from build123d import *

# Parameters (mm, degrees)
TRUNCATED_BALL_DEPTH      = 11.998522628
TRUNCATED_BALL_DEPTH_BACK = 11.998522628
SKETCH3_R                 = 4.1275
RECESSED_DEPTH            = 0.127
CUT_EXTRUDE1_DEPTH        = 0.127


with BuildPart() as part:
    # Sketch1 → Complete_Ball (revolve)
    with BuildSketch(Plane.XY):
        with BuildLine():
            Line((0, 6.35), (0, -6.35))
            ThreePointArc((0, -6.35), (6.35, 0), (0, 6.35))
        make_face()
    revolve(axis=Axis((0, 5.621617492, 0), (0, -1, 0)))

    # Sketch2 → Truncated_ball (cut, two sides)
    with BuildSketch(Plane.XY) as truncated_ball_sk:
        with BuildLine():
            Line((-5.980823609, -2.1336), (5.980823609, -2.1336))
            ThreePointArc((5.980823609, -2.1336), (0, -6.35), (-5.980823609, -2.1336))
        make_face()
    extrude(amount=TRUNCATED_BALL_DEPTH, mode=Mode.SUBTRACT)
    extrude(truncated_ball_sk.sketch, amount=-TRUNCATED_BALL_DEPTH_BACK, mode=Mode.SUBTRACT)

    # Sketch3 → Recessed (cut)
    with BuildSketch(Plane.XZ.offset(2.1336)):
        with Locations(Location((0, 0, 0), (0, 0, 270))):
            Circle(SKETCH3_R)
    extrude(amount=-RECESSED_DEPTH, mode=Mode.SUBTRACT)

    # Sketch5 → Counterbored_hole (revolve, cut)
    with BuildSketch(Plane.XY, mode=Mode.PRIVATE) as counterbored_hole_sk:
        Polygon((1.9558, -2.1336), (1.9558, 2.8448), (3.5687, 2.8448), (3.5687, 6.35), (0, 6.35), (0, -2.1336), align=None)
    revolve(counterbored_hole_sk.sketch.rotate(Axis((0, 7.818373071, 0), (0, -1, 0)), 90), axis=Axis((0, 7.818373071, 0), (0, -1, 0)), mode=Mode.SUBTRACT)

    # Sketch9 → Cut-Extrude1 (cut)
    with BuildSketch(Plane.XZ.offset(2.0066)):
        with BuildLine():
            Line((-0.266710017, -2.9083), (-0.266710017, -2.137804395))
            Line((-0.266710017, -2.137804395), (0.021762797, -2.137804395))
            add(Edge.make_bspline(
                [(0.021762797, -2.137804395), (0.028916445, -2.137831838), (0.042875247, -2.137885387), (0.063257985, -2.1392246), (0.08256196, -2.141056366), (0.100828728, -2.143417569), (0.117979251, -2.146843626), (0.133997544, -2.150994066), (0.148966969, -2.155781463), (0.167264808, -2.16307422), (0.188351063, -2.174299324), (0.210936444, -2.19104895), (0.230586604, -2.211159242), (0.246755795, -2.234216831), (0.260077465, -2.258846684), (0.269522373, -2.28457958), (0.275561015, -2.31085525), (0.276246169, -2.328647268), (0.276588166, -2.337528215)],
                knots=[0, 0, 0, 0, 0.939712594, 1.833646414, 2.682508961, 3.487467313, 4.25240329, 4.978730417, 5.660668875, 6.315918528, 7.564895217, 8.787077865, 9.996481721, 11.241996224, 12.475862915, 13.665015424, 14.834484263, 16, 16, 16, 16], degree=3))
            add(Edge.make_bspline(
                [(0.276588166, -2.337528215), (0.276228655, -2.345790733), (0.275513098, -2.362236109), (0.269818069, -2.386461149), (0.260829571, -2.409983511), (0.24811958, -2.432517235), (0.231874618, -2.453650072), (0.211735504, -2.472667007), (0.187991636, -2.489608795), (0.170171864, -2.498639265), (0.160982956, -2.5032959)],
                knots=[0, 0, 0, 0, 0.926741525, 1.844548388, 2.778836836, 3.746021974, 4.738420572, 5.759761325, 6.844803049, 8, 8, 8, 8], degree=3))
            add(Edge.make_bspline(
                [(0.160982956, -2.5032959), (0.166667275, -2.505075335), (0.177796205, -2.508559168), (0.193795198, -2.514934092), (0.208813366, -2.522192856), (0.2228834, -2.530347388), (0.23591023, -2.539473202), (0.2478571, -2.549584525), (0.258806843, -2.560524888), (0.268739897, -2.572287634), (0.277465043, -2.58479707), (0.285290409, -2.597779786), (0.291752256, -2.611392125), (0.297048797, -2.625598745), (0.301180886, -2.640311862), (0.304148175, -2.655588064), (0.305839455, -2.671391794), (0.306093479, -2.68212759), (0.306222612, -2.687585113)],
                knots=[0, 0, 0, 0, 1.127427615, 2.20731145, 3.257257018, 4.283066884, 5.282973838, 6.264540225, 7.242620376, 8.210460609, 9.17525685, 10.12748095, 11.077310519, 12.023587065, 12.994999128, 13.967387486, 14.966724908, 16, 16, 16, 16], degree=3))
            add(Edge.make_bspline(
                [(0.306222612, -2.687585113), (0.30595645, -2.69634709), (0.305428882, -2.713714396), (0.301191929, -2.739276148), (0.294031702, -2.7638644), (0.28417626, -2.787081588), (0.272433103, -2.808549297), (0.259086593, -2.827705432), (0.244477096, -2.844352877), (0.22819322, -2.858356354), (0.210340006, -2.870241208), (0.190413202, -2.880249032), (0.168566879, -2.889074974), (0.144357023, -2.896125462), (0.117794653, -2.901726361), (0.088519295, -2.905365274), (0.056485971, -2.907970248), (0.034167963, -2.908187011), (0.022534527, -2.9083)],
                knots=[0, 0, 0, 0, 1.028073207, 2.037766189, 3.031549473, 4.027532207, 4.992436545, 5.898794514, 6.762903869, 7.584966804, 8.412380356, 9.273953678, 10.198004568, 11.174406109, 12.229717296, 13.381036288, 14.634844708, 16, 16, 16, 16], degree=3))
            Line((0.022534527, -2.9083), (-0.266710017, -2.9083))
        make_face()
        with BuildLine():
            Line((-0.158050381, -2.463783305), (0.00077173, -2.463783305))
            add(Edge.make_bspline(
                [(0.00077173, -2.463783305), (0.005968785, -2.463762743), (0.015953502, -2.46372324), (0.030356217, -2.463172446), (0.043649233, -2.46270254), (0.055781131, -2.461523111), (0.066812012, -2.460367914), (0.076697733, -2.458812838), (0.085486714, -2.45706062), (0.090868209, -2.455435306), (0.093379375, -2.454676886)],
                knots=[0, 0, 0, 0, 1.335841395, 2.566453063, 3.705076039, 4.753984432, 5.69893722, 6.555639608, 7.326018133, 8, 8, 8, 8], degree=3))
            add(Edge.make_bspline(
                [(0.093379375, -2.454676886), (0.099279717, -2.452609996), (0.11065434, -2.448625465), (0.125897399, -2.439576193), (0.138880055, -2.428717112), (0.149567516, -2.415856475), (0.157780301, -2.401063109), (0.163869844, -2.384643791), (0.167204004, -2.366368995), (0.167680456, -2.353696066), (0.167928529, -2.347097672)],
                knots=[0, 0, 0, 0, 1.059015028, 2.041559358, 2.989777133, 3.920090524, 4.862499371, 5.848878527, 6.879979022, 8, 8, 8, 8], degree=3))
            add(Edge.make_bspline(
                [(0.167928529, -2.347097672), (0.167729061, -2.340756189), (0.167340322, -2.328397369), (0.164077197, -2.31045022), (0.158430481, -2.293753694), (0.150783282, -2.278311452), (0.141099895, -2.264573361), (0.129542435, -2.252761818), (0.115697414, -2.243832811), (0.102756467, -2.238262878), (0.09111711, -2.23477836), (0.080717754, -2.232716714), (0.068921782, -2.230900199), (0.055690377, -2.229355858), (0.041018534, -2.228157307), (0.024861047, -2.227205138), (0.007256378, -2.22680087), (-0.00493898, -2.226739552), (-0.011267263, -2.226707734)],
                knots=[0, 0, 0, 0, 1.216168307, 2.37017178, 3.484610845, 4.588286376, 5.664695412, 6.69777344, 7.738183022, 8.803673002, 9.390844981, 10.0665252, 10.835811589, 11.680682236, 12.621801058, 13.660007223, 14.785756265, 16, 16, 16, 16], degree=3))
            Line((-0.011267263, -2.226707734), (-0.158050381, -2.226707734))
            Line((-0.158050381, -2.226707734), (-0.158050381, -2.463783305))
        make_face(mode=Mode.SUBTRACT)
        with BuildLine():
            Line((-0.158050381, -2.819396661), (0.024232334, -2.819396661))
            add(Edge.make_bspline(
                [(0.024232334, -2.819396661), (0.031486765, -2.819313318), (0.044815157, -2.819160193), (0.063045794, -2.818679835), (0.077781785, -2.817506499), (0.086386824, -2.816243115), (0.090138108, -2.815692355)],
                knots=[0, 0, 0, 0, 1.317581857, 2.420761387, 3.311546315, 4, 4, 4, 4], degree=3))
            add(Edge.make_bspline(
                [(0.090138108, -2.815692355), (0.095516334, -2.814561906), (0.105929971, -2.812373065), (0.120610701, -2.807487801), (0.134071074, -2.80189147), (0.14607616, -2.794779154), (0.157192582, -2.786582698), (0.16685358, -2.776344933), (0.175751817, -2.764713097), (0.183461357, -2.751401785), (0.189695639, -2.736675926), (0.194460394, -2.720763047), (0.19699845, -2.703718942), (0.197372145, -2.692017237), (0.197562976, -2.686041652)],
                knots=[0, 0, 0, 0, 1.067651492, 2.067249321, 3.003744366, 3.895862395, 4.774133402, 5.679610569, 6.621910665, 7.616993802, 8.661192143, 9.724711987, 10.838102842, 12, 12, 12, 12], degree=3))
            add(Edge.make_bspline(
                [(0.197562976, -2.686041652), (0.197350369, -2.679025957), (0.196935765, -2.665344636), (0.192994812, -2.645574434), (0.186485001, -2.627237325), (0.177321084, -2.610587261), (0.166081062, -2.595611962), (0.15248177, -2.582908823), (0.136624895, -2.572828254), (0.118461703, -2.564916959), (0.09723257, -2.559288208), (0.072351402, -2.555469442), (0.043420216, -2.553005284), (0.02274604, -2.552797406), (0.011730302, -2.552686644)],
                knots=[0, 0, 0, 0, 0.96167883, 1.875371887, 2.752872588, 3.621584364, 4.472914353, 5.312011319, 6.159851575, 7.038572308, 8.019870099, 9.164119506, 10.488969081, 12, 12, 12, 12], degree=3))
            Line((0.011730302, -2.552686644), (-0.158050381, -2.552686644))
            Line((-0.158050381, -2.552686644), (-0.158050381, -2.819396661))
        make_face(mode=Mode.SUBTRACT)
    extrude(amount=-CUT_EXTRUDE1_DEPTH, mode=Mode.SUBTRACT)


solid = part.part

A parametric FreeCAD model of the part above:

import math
import FreeCAD as App
import Part
import Sketcher
from FreeCAD import Vector
Q = App.Units.Quantity

doc = App.newDocument("Part")
body = doc.addObject("PartDesign::Body", "Body")

sketch1 = body.newObject("Sketcher::SketchObject", "Sketch")
sketch1.AttachmentSupport = (doc.getObject("XY_Plane"), [""])
sketch1.MapMode = "FlatFace"
sketch1.addGeometry([
    Part.LineSegment(Vector(0, 6, 0), Vector(0, -6, 0)),
    Part.ArcOfCircle(Part.Circle(Vector(0, 0, 0), Vector(0, 0, 1), 6), math.radians(-90), math.radians(90)),
], False)
sketch1.addConstraint([
    Sketcher.Constraint("Coincident", 0, 1, 1, 2),
    Sketcher.Constraint("Coincident", 1, 1, 0, 2),
    Sketcher.Constraint("Vertical", 0),
    Sketcher.Constraint("Coincident", 1, 3, -1, 1),
    Sketcher.Constraint("PointOnObject", 0, 1, -2),
    Sketcher.Constraint("Radius", 1, Q("0.25 in")),
])
revolution = body.newObject("PartDesign::Revolution", "Revolution")
revolution.Profile = sketch1
revolution.ReferenceAxis = (sketch1, ["V_Axis"])
revolution.Angle = 360

sketch2 = body.newObject("Sketcher::SketchObject", "Sketch001")
sketch2.AttachmentSupport = (doc.getObject("XY_Plane"), [""])
sketch2.MapMode = "FlatFace"
sketch2.addGeometry([
    Part.LineSegment(Vector(6, -2, 0), Vector(-6, -2, 0)),
    Part.ArcOfCircle(Part.Circle(Vector(0, 0, 0), Vector(0, 0, 1), 6), math.radians(-160), math.radians(-20)),
], False)
sketch2.addConstraint([
    Sketcher.Constraint("Coincident", 0, 1, 1, 2),
    Sketcher.Constraint("Coincident", 1, 1, 0, 2),
    Sketcher.Constraint("Horizontal", 0),
    Sketcher.Constraint("Coincident", 1, 3, -1, 1),
    Sketcher.Constraint("Radius", 1, Q("0.25 in")),
    Sketcher.Constraint("DistanceY", 0, 1, -1, 1, Q("0.084 in")),
])
pocket1 = body.newObject("PartDesign::Pocket", "Pocket")
pocket1.Profile = sketch2
pocket1.Type = "ThroughAll"
pocket1.Midplane = True

sketch3 = body.newObject("Sketcher::SketchObject", "Sketch002")
sketch3.AttachmentSupport = (doc.getObject("XZ_Plane"), [""])
sketch3.MapMode = "FlatFace"
sketch3.AttachmentOffset = App.Placement(Vector(0, 0, 0.084 * 25.4), App.Rotation())
sketch3.addGeometry(Part.Circle(Vector(0, 0, 0), Vector(0, 0, 1), 4.1), False)
sketch3.addConstraint([
    Sketcher.Constraint("Coincident", 0, 3, -1, 1),
    Sketcher.Constraint("Diameter", 0, Q("0.325 in")),
])
pocket2 = body.newObject("PartDesign::Pocket", "Pocket001")
pocket2.Profile = sketch3
pocket2.Length = Q("0.005 in")

sketch4 = body.newObject("Sketcher::SketchObject", "Sketch003")
sketch4.AttachmentSupport = (doc.getObject("XY_Plane"), [""])
sketch4.MapMode = "FlatFace"
sketch4.addGeometry([
    Part.LineSegment(Vector(2, -2.1, 0), Vector(2, 2.8, 0)),
    Part.LineSegment(Vector(2, 2.8, 0), Vector(3.6, 2.8, 0)),
    Part.LineSegment(Vector(3.6, 2.8, 0), Vector(3.6, 6.3, 0)),
    Part.LineSegment(Vector(3.6, 6.3, 0), Vector(0, 6.3, 0)),
    Part.LineSegment(Vector(0, 6.3, 0), Vector(0, -2.1, 0)),
    Part.LineSegment(Vector(0, -2.1, 0), Vector(2, -2.1, 0)),
], False)
sketch4.addConstraint([
    Sketcher.Constraint("Coincident", 0, 2, 1, 1),
    Sketcher.Constraint("Coincident", 1, 2, 2, 1),
    Sketcher.Constraint("Coincident", 2, 2, 3, 1),
    Sketcher.Constraint("Coincident", 3, 2, 4, 1),
    Sketcher.Constraint("Coincident", 4, 2, 5, 1),
    Sketcher.Constraint("Coincident", 5, 2, 0, 1),
    Sketcher.Constraint("Vertical", 0),
    Sketcher.Constraint("Horizontal", 1),
    Sketcher.Constraint("Vertical", 2),
    Sketcher.Constraint("Horizontal", 3),
    Sketcher.Constraint("Vertical", 4),
    Sketcher.Constraint("Horizontal", 5),
    Sketcher.Constraint("PointOnObject", 3, 2, -2),
    Sketcher.Constraint("DistanceX", 5, 1, 5, 2, Q("0.077 in")),
    Sketcher.Constraint("DistanceY", 0, 1, 0, 2, Q("0.196 in")),
    Sketcher.Constraint("DistanceY", 2, 1, 2, 2, Q("0.138 in")),
    Sketcher.Constraint("DistanceY", -1, 1, 2, 2, Q("0.25 in")),
    Sketcher.Constraint("DistanceX", 1, 1, 1, 2, Q("0.0635 in")),
])
groove = body.newObject("PartDesign::Groove", "Groove")
groove.Profile = sketch4
groove.ReferenceAxis = (sketch4, ["V_Axis"])
groove.Angle = 360

sketch5 = body.newObject("Sketcher::SketchObject", "Sketch004")
sketch5.AttachmentSupport = (doc.getObject("XZ_Plane"), [""])
sketch5.MapMode = "FlatFace"
sketch5.AttachmentOffset = App.Placement(Vector(0, 0, 0.079 * 25.4), App.Rotation())
sketch5.addGeometry([
    Part.LineSegment(Vector(-0.26671, -2.137804, 0), Vector(-0.26671, -2.9083, 0)),
    Part.LineSegment(Vector(-0.26671, -2.9083, 0), Vector(0.022535, -2.9083, 0)),
    Part.BSplineCurve([Vector(0.306223, -2.687585, 0), Vector(0.305956, -2.696347, 0), Vector(0.305429, -2.713714, 0), Vector(0.301192, -2.739276, 0), Vector(0.294032, -2.763864, 0), Vector(0.284176, -2.787082, 0), Vector(0.272433, -2.808549, 0), Vector(0.259087, -2.827705, 0), Vector(0.244477, -2.844353, 0), Vector(0.228193, -2.858356, 0), Vector(0.21034, -2.870241, 0), Vector(0.190413, -2.880249, 0), Vector(0.168567, -2.889075, 0), Vector(0.144357, -2.896125, 0), Vector(0.117795, -2.901726, 0), Vector(0.088519, -2.905365, 0), Vector(0.056486, -2.90797, 0), Vector(0.034168, -2.908187, 0), Vector(0.022535, -2.9083, 0)], [4, 1, 1, 1, 1, 1, 1, 1, 1, 1, 1, 1, 1, 1, 1, 1, 4], [0, 1.028073207, 2.037766189, 3.031549473, 4.027532207, 4.992436545, 5.898794514, 6.762903869, 7.584966804, 8.412380356, 9.273953678, 10.198004568, 11.174406109, 12.229717296, 13.381036288, 14.634844708, 16], False, 3, [1, 1, 1, 1, 1, 1, 1, 1, 1, 1, 1, 1, 1, 1, 1, 1, 1, 1, 1], False),
    Part.BSplineCurve([Vector(0.160983, -2.503296, 0), Vector(0.166667, -2.505075, 0), Vector(0.177796, -2.508559, 0), Vector(0.193795, -2.514934, 0), Vector(0.208813, -2.522193, 0), Vector(0.222883, -2.530347, 0), Vector(0.23591, -2.539473, 0), Vector(0.247857, -2.549585, 0), Vector(0.258807, -2.560525, 0), Vector(0.26874, -2.572288, 0), Vector(0.277465, -2.584797, 0), Vector(0.28529, -2.59778, 0), Vector(0.291752, -2.611392, 0), Vector(0.297049, -2.625599, 0), Vector(0.301181, -2.640312, 0), Vector(0.304148, -2.655588, 0), Vector(0.305839, -2.671392, 0), Vector(0.306093, -2.682128, 0), Vector(0.306223, -2.687585, 0)], [4, 1, 1, 1, 1, 1, 1, 1, 1, 1, 1, 1, 1, 1, 1, 1, 4], [0, 1.127427615, 2.20731145, 3.257257018, 4.283066884, 5.282973838, 6.264540225, 7.242620376, 8.210460609, 9.17525685, 10.12748095, 11.077310519, 12.023587065, 12.994999128, 13.967387486, 14.966724908, 16], False, 3, [1, 1, 1, 1, 1, 1, 1, 1, 1, 1, 1, 1, 1, 1, 1, 1, 1, 1, 1], False),
    Part.BSplineCurve([Vector(0.276588, -2.337528, 0), Vector(0.276229, -2.345791, 0), Vector(0.275513, -2.362236, 0), Vector(0.269818, -2.386461, 0), Vector(0.26083, -2.409984, 0), Vector(0.24812, -2.432517, 0), Vector(0.231875, -2.45365, 0), Vector(0.211736, -2.472667, 0), Vector(0.187992, -2.489609, 0), Vector(0.170172, -2.498639, 0), Vector(0.160983, -2.503296, 0)], [4, 1, 1, 1, 1, 1, 1, 1, 4], [0, 0.926741525, 1.844548388, 2.778836836, 3.746021974, 4.738420572, 5.759761325, 6.844803049, 8], False, 3, [1, 1, 1, 1, 1, 1, 1, 1, 1, 1, 1], False),
    Part.BSplineCurve([Vector(0.021763, -2.137804, 0), Vector(0.028916, -2.137832, 0), Vector(0.042875, -2.137885, 0), Vector(0.063258, -2.139225, 0), Vector(0.082562, -2.141056, 0), Vector(0.100829, -2.143418, 0), Vector(0.117979, -2.146844, 0), Vector(0.133998, -2.150994, 0), Vector(0.148967, -2.155781, 0), Vector(0.167265, -2.163074, 0), Vector(0.188351, -2.174299, 0), Vector(0.210936, -2.191049, 0), Vector(0.230587, -2.211159, 0), Vector(0.246756, -2.234217, 0), Vector(0.260077, -2.258847, 0), Vector(0.269522, -2.28458, 0), Vector(0.275561, -2.310855, 0), Vector(0.276246, -2.328647, 0), Vector(0.276588, -2.337528, 0)], [4, 1, 1, 1, 1, 1, 1, 1, 1, 1, 1, 1, 1, 1, 1, 1, 4], [0, 0.939712594, 1.833646414, 2.682508961, 3.487467313, 4.25240329, 4.978730417, 5.660668875, 6.315918528, 7.564895217, 8.787077865, 9.996481721, 11.241996224, 12.475862915, 13.665015424, 14.834484263, 16], False, 3, [1, 1, 1, 1, 1, 1, 1, 1, 1, 1, 1, 1, 1, 1, 1, 1, 1, 1, 1], False),
    Part.LineSegment(Vector(0.021763, -2.137804, 0), Vector(-0.26671, -2.137804, 0)),
    Part.LineSegment(Vector(-0.15805, -2.819397, 0), Vector(-0.15805, -2.552687, 0)),
    Part.LineSegment(Vector(-0.15805, -2.552687, 0), Vector(0.01173, -2.552687, 0)),
    Part.BSplineCurve([Vector(0.197563, -2.686042, 0), Vector(0.19735, -2.679026, 0), Vector(0.196936, -2.665345, 0), Vector(0.192995, -2.645574, 0), Vector(0.186485, -2.627237, 0), Vector(0.177321, -2.610587, 0), Vector(0.166081, -2.595612, 0), Vector(0.152482, -2.582909, 0), Vector(0.136625, -2.572828, 0), Vector(0.118462, -2.564917, 0), Vector(0.097233, -2.559288, 0), Vector(0.072351, -2.555469, 0), Vector(0.04342, -2.553005, 0), Vector(0.022746, -2.552797, 0), Vector(0.01173, -2.552687, 0)], [4, 1, 1, 1, 1, 1, 1, 1, 1, 1, 1, 1, 4], [0, 0.96167883, 1.875371887, 2.752872588, 3.621584364, 4.472914353, 5.312011319, 6.159851575, 7.038572308, 8.019870099, 9.164119506, 10.488969081, 12], False, 3, [1, 1, 1, 1, 1, 1, 1, 1, 1, 1, 1, 1, 1, 1, 1], False),
    Part.BSplineCurve([Vector(0.090138, -2.815692, 0), Vector(0.095516, -2.814562, 0), Vector(0.10593, -2.812373, 0), Vector(0.120611, -2.807488, 0), Vector(0.134071, -2.801891, 0), Vector(0.146076, -2.794779, 0), Vector(0.157193, -2.786583, 0), Vector(0.166854, -2.776345, 0), Vector(0.175752, -2.764713, 0), Vector(0.183461, -2.751402, 0), Vector(0.189696, -2.736676, 0), Vector(0.19446, -2.720763, 0), Vector(0.196998, -2.703719, 0), Vector(0.197372, -2.692017, 0), Vector(0.197563, -2.686042, 0)], [4, 1, 1, 1, 1, 1, 1, 1, 1, 1, 1, 1, 4], [0, 1.067651492, 2.067249321, 3.003744366, 3.895862395, 4.774133402, 5.679610569, 6.621910665, 7.616993802, 8.661192143, 9.724711987, 10.838102842, 12], False, 3, [1, 1, 1, 1, 1, 1, 1, 1, 1, 1, 1, 1, 1, 1, 1], False),
    Part.BSplineCurve([Vector(0.024232, -2.819397, 0), Vector(0.031487, -2.819313, 0), Vector(0.044815, -2.81916, 0), Vector(0.063046, -2.81868, 0), Vector(0.077782, -2.817506, 0), Vector(0.086387, -2.816243, 0), Vector(0.090138, -2.815692, 0)], [4, 1, 1, 1, 4], [0, 1.317581857, 2.420761387, 3.311546315, 4], False, 3, [1, 1, 1, 1, 1, 1, 1], False),
    Part.LineSegment(Vector(0.024232, -2.819397, 0), Vector(-0.15805, -2.819397, 0)),
    Part.LineSegment(Vector(-0.15805, -2.463783, 0), Vector(-0.15805, -2.226708, 0)),
    Part.LineSegment(Vector(-0.15805, -2.226708, 0), Vector(-0.011267, -2.226708, 0)),
    Part.BSplineCurve([Vector(0.167929, -2.347098, 0), Vector(0.167729, -2.340756, 0), Vector(0.16734, -2.328397, 0), Vector(0.164077, -2.31045, 0), Vector(0.15843, -2.293754, 0), Vector(0.150783, -2.278311, 0), Vector(0.1411, -2.264573, 0), Vector(0.129542, -2.252762, 0), Vector(0.115697, -2.243833, 0), Vector(0.102756, -2.238263, 0), Vector(0.091117, -2.234778, 0), Vector(0.080718, -2.232717, 0), Vector(0.068922, -2.2309, 0), Vector(0.05569, -2.229356, 0), Vector(0.041019, -2.228157, 0), Vector(0.024861, -2.227205, 0), Vector(0.007256, -2.226801, 0), Vector(-0.004939, -2.22674, 0), Vector(-0.011267, -2.226708, 0)], [4, 1, 1, 1, 1, 1, 1, 1, 1, 1, 1, 1, 1, 1, 1, 1, 4], [0, 1.216168307, 2.37017178, 3.484610845, 4.588286376, 5.664695412, 6.69777344, 7.738183022, 8.803673002, 9.390844981, 10.0665252, 10.835811589, 11.680682236, 12.621801058, 13.660007223, 14.785756265, 16], False, 3, [1, 1, 1, 1, 1, 1, 1, 1, 1, 1, 1, 1, 1, 1, 1, 1, 1, 1, 1], False),
    Part.BSplineCurve([Vector(0.093379, -2.454677, 0), Vector(0.09928, -2.45261, 0), Vector(0.110654, -2.448625, 0), Vector(0.125897, -2.439576, 0), Vector(0.13888, -2.428717, 0), Vector(0.149568, -2.415856, 0), Vector(0.15778, -2.401063, 0), Vector(0.16387, -2.384644, 0), Vector(0.167204, -2.366369, 0), Vector(0.16768, -2.353696, 0), Vector(0.167929, -2.347098, 0)], [4, 1, 1, 1, 1, 1, 1, 1, 4], [0, 1.059015028, 2.041559358, 2.989777133, 3.920090524, 4.862499371, 5.848878527, 6.879979022, 8], False, 3, [1, 1, 1, 1, 1, 1, 1, 1, 1, 1, 1], False),
    Part.BSplineCurve([Vector(0.000772, -2.463783, 0), Vector(0.005969, -2.463763, 0), Vector(0.015954, -2.463723, 0), Vector(0.030356, -2.463172, 0), Vector(0.043649, -2.462703, 0), Vector(0.055781, -2.461523, 0), Vector(0.066812, -2.460368, 0), Vector(0.076698, -2.458813, 0), Vector(0.085487, -2.457061, 0), Vector(0.090868, -2.455435, 0), Vector(0.093379, -2.454677, 0)], [4, 1, 1, 1, 1, 1, 1, 1, 4], [0, 1.335841395, 2.566453063, 3.705076039, 4.753984432, 5.69893722, 6.555639608, 7.326018133, 8], False, 3, [1, 1, 1, 1, 1, 1, 1, 1, 1, 1, 1], False),
    Part.LineSegment(Vector(0.000772, -2.463783, 0), Vector(-0.15805, -2.463783, 0)),
], False)
sketch5.addConstraint([
    Sketcher.Constraint("Block", 2),
    Sketcher.Constraint("Block", 3),
    Sketcher.Constraint("Block", 4),
    Sketcher.Constraint("Block", 5),
    Sketcher.Constraint("Block", 9),
    Sketcher.Constraint("Block", 10),
    Sketcher.Constraint("Block", 11),
    Sketcher.Constraint("Block", 15),
    Sketcher.Constraint("Block", 16),
    Sketcher.Constraint("Block", 17),
    Sketcher.Constraint("Coincident", 0, 2, 1, 1),
    Sketcher.Constraint("Coincident", 1, 2, 2, 2),
    Sketcher.Constraint("Coincident", 5, 1, 6, 1),
    Sketcher.Constraint("Coincident", 6, 2, 0, 1),
    Sketcher.Constraint("Coincident", 7, 2, 8, 1),
    Sketcher.Constraint("Coincident", 8, 2, 9, 2),
    Sketcher.Constraint("Coincident", 11, 1, 12, 1),
    Sketcher.Constraint("Coincident", 12, 2, 7, 1),
    Sketcher.Constraint("Coincident", 13, 2, 14, 1),
    Sketcher.Constraint("Coincident", 14, 2, 15, 2),
    Sketcher.Constraint("Coincident", 17, 1, 18, 1),
    Sketcher.Constraint("Coincident", 18, 2, 13, 1),
    Sketcher.Constraint("Vertical", 0),
    Sketcher.Constraint("Horizontal", 1),
    Sketcher.Constraint("Horizontal", 6),
    Sketcher.Constraint("Vertical", 7),
    Sketcher.Constraint("Horizontal", 8),
    Sketcher.Constraint("Horizontal", 12),
    Sketcher.Constraint("Vertical", 13),
    Sketcher.Constraint("Horizontal", 14),
    Sketcher.Constraint("Horizontal", 18),
    Sketcher.Constraint("Vertical", 12, 2, 13, 2),
    Sketcher.Constraint("DistanceX", 8, 1, 8, 2, Q("0.169781 mm")),
    Sketcher.Constraint("DistanceX", 1, 1, 1, 2, Q("0.289245 mm")),
])
pocket3 = body.newObject("PartDesign::Pocket", "Pocket002")
pocket3.Profile = sketch5
pocket3.Length = Q("0.005 in")

doc.recompute()
